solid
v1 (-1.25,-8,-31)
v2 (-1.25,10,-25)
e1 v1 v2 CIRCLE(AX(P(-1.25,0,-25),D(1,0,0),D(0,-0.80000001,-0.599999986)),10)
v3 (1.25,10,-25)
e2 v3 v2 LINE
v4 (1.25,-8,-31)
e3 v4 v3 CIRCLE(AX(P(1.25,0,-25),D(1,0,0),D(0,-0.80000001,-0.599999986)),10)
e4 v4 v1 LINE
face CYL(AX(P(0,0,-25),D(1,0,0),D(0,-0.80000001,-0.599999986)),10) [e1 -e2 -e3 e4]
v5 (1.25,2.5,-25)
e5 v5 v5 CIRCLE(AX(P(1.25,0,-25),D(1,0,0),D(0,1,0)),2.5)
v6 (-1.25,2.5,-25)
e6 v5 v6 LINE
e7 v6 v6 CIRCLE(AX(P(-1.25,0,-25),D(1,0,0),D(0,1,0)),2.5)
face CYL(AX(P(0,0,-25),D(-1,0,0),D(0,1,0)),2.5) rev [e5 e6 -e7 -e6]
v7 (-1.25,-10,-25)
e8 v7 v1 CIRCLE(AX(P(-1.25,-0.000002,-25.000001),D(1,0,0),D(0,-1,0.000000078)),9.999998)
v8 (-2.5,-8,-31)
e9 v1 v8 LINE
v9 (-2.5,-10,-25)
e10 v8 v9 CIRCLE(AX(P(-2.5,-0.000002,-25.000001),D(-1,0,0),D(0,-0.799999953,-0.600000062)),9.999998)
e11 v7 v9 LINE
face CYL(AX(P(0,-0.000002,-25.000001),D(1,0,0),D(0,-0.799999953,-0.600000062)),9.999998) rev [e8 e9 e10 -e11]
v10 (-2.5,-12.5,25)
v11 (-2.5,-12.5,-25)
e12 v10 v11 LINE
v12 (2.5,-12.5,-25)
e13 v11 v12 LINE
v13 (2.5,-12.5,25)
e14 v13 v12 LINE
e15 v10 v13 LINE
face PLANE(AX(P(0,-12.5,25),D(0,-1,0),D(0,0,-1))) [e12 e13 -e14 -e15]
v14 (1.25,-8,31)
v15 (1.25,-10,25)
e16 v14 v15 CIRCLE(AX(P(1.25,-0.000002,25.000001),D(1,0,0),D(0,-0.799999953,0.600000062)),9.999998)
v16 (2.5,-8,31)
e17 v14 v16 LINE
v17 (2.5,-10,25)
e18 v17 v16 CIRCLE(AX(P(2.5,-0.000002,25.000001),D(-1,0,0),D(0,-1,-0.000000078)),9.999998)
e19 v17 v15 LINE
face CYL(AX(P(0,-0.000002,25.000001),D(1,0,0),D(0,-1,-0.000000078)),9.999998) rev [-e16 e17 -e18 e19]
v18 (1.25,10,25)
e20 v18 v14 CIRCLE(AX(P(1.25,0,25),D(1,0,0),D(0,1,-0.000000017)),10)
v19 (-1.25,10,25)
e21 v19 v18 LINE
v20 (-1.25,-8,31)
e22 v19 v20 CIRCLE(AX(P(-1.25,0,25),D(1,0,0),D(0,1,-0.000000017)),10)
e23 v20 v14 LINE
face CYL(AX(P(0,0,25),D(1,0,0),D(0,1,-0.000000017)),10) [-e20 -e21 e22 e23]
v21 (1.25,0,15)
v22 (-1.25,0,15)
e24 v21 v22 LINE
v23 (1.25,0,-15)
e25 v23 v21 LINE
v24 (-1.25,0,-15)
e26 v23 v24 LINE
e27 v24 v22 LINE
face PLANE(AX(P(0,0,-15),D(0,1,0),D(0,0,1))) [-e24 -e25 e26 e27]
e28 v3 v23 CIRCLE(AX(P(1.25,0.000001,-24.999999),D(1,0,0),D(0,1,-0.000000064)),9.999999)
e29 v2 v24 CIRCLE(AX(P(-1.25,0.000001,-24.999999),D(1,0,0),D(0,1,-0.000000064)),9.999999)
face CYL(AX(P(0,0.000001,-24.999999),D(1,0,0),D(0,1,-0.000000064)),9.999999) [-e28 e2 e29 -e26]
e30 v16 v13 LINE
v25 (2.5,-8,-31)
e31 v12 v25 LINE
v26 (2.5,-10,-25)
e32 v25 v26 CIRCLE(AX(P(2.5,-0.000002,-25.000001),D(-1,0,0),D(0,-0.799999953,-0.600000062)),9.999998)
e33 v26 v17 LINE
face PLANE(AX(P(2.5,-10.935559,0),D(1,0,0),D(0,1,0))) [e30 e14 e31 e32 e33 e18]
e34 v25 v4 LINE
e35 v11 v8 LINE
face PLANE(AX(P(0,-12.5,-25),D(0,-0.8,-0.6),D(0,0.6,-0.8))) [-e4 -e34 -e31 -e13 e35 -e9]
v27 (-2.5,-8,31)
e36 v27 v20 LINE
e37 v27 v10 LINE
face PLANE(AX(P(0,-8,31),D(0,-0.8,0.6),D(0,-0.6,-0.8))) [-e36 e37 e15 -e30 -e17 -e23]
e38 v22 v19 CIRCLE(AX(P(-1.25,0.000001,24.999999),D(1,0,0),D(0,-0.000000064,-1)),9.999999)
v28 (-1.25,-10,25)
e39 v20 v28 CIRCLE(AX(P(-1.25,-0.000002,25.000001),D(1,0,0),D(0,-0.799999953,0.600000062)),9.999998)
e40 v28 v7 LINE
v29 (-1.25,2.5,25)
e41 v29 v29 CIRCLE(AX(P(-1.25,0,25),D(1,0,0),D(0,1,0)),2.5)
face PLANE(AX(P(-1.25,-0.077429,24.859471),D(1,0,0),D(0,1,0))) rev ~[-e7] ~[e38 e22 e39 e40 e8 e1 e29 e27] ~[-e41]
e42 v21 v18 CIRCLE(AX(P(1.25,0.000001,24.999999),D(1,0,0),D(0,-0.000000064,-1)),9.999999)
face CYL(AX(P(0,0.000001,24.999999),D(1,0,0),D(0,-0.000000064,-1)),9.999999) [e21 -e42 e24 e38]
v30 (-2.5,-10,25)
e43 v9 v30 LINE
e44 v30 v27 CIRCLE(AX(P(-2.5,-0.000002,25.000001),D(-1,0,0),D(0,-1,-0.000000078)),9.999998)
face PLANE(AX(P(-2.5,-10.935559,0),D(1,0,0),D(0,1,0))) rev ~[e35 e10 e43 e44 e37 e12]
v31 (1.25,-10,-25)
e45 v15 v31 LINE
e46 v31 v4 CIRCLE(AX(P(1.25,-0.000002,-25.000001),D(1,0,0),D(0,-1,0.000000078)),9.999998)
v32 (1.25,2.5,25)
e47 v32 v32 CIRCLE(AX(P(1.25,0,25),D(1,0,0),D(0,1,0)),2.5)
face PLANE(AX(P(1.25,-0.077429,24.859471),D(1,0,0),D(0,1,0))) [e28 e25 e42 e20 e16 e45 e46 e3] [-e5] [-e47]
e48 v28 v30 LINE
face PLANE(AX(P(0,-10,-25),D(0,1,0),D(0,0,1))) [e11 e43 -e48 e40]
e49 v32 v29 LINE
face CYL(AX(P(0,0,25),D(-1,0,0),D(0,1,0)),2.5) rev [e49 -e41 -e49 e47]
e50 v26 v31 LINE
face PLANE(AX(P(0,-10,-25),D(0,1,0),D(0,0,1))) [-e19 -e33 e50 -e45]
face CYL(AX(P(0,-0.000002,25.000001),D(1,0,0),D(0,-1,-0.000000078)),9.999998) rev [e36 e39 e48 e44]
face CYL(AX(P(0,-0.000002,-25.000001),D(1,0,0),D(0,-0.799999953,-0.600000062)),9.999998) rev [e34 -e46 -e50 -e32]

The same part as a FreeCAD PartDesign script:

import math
import FreeCAD as App
import Part
import Sketcher
from FreeCAD import Vector
Q = App.Units.Quantity

doc = App.newDocument("Part")
body = doc.addObject("PartDesign::Body", "Body")

sketch1 = body.newObject("Sketcher::SketchObject", "Sketch")
sketch1.AttachmentSupport = (doc.getObject("YZ_Plane"), [""])
sketch1.MapMode = "FlatFace"
sketch1.addGeometry([
    Part.ArcOfCircle(Part.Circle(Vector(0, 25, 0), Vector(0, 0, 1), 10), math.radians(143), math.radians(180)),
    Part.LineSegment(Vector(-8, 31, 0), Vector(-12, 25, 0)),
    Part.LineSegment(Vector(-12, 25, 0), Vector(-12, -25, 0)),
    Part.LineSegment(Vector(-12, -25, 0), Vector(-8, -31, 0)),
    Part.ArcOfCircle(Part.Circle(Vector(0, -25, 0), Vector(0, 0, 1), 10), math.radians(180), math.radians(217)),
    Part.LineSegment(Vector(-10, -25, 0), Vector(-10, 25, 0)),
], False)
sketch1.addConstraint([
    Sketcher.Constraint("Tangent", 0, 1, 1, 1),
    Sketcher.Constraint("Coincident", 1, 2, 2, 1),
    Sketcher.Constraint("Coincident", 2, 2, 3, 1),
    Sketcher.Constraint("Tangent", 3, 2, 4, 2),
    Sketcher.Constraint("Tangent", 4, 1, 5, 1),
    Sketcher.Constraint("Tangent", 5, 2, 0, 2),
    Sketcher.Constraint("Vertical", 2),
    Sketcher.Constraint("Vertical", 5),
    Sketcher.Constraint("Equal", 0, 4),
    Sketcher.Constraint("Symmetric", 0, 3, 4, 3, -1, 1),
    Sketcher.Constraint("Horizontal", 0, 3, 1, 2),
    Sketcher.Constraint("Horizontal", 4, 3, 2, 2),
    Sketcher.Constraint("DistanceY", 2, 2, 2, 1, Q("50 mm")),
    Sketcher.Constraint("DistanceX", 0, 1, -1, 1, Q("8 mm")),
    Sketcher.Constraint("DistanceY", -1, 1, 0, 1, Q("31 mm")),
])
pad1 = body.newObject("PartDesign::Pad", "Pad")
pad1.Profile = sketch1
pad1.Length = 5
pad1.Midplane = True

sketch2 = body.newObject("Sketcher::SketchObject", "Sketch001")
sketch2.AttachmentSupport = (doc.getObject("YZ_Plane"), [""])
sketch2.MapMode = "FlatFace"
sketch2.addGeometry([
    Part.ArcOfCircle(Part.Circle(Vector(0, 25, 0), Vector(0, 0, 1), 10), math.radians(-90), math.radians(0)),
    Part.ArcOfCircle(Part.Circle(Vector(0, 25, 0), Vector(0, 0, 1), 10), math.radians(0), math.radians(143)),
    Part.ArcOfCircle(Part.Circle(Vector(0, 25, 0), Vector(0, 0, 1), 10), math.radians(143), math.radians(180)),
    Part.LineSegment(Vector(-10, 25, 0), Vector(-10, -25, 0)),
    Part.ArcOfCircle(Part.Circle(Vector(0, -25, 0), Vector(0, 0, 1), 10), math.radians(180), math.radians(217)),
    Part.ArcOfCircle(Part.Circle(Vector(0, -25, 0), Vector(0, 0, 1), 10), math.radians(-143), math.radians(0)),
    Part.ArcOfCircle(Part.Circle(Vector(0, -25, 0), Vector(0, 0, 1), 10), math.radians(0), math.radians(90)),
    Part.LineSegment(Vector(0, -15, 0), Vector(0, 15, 0)),
    Part.Circle(Vector(0, -25, 0), Vector(0, 0, 1), 2.5),
    Part.Circle(Vector(0, 25, 0), Vector(0, 0, 1), 2.5),
], False)
sketch2.addConstraint([
    Sketcher.Constraint("Tangent", 0, 2, 1, 1),
    Sketcher.Constraint("Tangent", 1, 2, 2, 1),
    Sketcher.Constraint("Tangent", 2, 2, 3, 1),
    Sketcher.Constraint("Tangent", 3, 2, 4, 1),
    Sketcher.Constraint("Tangent", 4, 2, 5, 1),
    Sketcher.Constraint("Tangent", 5, 2, 6, 1),
    Sketcher.Constraint("Coincident", 6, 2, 7, 1),
    Sketcher.Constraint("Coincident", 7, 2, 0, 1),
    Sketcher.Constraint("Vertical", 3),
    Sketcher.Constraint("Vertical", 7),
    Sketcher.Constraint("Coincident", 2, 3, 0, 3),
    Sketcher.Constraint("Coincident", 6, 3, 4, 3),
    Sketcher.Constraint("Coincident", 8, 3, 4, 3),
    Sketcher.Constraint("Coincident", 9, 3, 0, 3),
    Sketcher.Constraint("Equal", 2, 4),
    Sketcher.Constraint("Equal", 8, 9),
    Sketcher.Constraint("Symmetric", 0, 3, 4, 3, -1, 1),
    Sketcher.Constraint("PointOnObject", 6, 2, -2),
    Sketcher.Constraint("Horizontal", 9, 3, 0, 2),
    Sketcher.Constraint("Horizontal", 3, 2, 5, 2),
    Sketcher.Constraint("Vertical", 1, 2, 4, 2),
    Sketcher.Constraint("Diameter", 8, Q("5 mm")),
    Sketcher.Constraint("Radius", 0, Q("9.999999 mm")),
    Sketcher.Constraint("DistanceY", 3, 2, 3, 1, Q("50 mm")),
    Sketcher.Constraint("DistanceX", 1, 2, -1, 1, Q("8 mm")),
])
pad2 = body.newObject("PartDesign::Pad", "Pad001")
pad2.Profile = sketch2
pad2.Length = 2.5
pad2.Midplane = True

doc.recompute()
